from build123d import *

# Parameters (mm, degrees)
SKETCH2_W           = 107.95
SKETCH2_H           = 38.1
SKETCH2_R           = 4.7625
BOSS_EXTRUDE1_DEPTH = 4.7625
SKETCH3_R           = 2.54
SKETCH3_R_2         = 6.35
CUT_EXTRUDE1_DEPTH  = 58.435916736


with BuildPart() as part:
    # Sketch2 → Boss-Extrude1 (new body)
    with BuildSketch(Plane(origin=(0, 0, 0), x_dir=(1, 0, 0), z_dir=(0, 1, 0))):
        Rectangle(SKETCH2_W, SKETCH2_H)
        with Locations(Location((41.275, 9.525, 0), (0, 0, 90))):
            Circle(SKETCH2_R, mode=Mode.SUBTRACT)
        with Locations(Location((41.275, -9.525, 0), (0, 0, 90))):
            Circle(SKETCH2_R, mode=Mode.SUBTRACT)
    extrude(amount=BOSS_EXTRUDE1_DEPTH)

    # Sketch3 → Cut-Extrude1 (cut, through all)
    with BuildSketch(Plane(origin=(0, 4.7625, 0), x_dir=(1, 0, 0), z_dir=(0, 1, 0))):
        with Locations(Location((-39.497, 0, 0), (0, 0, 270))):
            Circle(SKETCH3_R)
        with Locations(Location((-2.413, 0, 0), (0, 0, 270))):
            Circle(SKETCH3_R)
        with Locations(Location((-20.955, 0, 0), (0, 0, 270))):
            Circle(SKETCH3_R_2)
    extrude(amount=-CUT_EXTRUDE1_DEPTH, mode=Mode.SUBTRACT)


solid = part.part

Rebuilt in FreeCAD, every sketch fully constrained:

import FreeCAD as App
import Part
import Sketcher
Q = App.Units.Quantity

doc = App.newDocument("Part")
params = doc.addObject("Spreadsheet::Sheet", "Params")
for row, (alias, value) in enumerate([
    ("sketch1_diameter", "0.375 in"),
    ("sketch1_height", "1.5 in"),
    ("sketch1_width", "4.25 in"),
    ("pad1_length", "0.1875 in"),
    ("sketch2_diameter", "0.2 in"),
    ("sketch2_diameter2", "0.5 in"),
], start=1):
    params.set(f"A{row}", alias)
    params.set(f"B{row}", "=" + value)
    params.setAlias(f"B{row}", alias)

body = doc.addObject("PartDesign::Body", "Body")

# Sketch on XZ plane
sketch1 = doc.addObject("Sketcher::SketchObject", "Sketch")
body.addObject(sketch1)
sketch1.AttachmentSupport = (doc.XZ_Plane, [""])
sketch1.MapMode = "FlatFace"
sketch1.addGeometry([
    Part.LineSegment(App.Vector(-53.975, -19.05, 0), App.Vector(-53.975, 19.05, 0)),  # 0
    Part.LineSegment(App.Vector(-53.975, 19.05, 0), App.Vector(53.975, 19.05, 0)),  # 1
    Part.LineSegment(App.Vector(53.975, 19.05, 0), App.Vector(53.975, -19.05, 0)),  # 2
    Part.LineSegment(App.Vector(53.975, -19.05, 0), App.Vector(-53.975, -19.05, 0)),  # 3
    Part.Circle(App.Vector(41.275, 9.525, 0), App.Vector(0, 0, 1), 4.7625),  # 4
    Part.Circle(App.Vector(41.275, -9.525, 0), App.Vector(0, 0, 1), 4.7625),  # 5
], False)
sketch1.addConstraint([
    Sketcher.Constraint("Coincident", 0, 2, 1, 1),
    Sketcher.Constraint("Coincident", 1, 2, 2, 1),
    Sketcher.Constraint("Coincident", 2, 2, 3, 1),
    Sketcher.Constraint("Coincident", 3, 2, 0, 1),
    Sketcher.Constraint("Vertical", 0),
    Sketcher.Constraint("Horizontal", 1),
    Sketcher.Constraint("Vertical", 2),
    Sketcher.Constraint("Horizontal", 3),
    Sketcher.Constraint("Equal", 4, 5),
    Sketcher.Constraint("Symmetric", 0, 2, 2, 2, -1, 1),
    Sketcher.Constraint("Symmetric", 4, 3, 5, 3, -1),
    Sketcher.Constraint("Diameter", 4, Q("0.375 in")),
    Sketcher.Constraint("DistanceY", 0, 1, 0, 2, Q("1.5 in")),
    Sketcher.Constraint("DistanceX", 1, 1, 1, 2, Q("4.25 in")),
    Sketcher.Constraint("DistanceX", 4, 3, 1, 2, Q("0.5 in")),
    Sketcher.Constraint("DistanceY", 5, 3, 4, 3, Q("0.75 in")),
])
sketch1.setExpression("Constraints[11]", "Params.sketch1_diameter")
sketch1.setExpression("Constraints[12]", "Params.sketch1_height")
sketch1.setExpression("Constraints[13]", "Params.sketch1_width")
pad1 = doc.addObject("PartDesign::Pad", "Pad")
body.addObject(pad1)
pad1.Profile = sketch1
pad1.setExpression("Length", "Params.pad1_length")
pad1.Reversed = True

# Sketch on XZ plane
sketch2 = doc.addObject("Sketcher::SketchObject", "Sketch001")
body.addObject(sketch2)
sketch2.AttachmentSupport = (doc.XZ_Plane, [""])
sketch2.MapMode = "FlatFace"
sketch2.AttachmentOffset = App.Placement(App.Vector(0, 0, -0.1875 * 25.4), App.Rotation())
sketch2.addGeometry([
    Part.Circle(App.Vector(-39.497, 0, 0), App.Vector(0, 0, 1), 2.54),
    Part.Circle(App.Vector(-2.413, 0, 0), App.Vector(0, 0, 1), 2.54),
    Part.Circle(App.Vector(-20.955, 0, 0), App.Vector(0, 0, 1), 6.35),
], False)
sketch2.addConstraint([
    Sketcher.Constraint("Equal", 0, 1),
    Sketcher.Constraint("PointOnObject", 0, 3, -1),
    Sketcher.Constraint("PointOnObject", 1, 3, -1),
    Sketcher.Constraint("PointOnObject", 2, 3, -1),
    Sketcher.Constraint("Diameter", 0, Q("0.2 in")),
    Sketcher.Constraint("Diameter", 2, Q("0.5 in")),
    Sketcher.Constraint("DistanceX", 0, 3, 1, 3, Q("1.46 in")),
    Sketcher.Constraint("DistanceX", 2, 3, 1, 3, Q("0.73 in")),
    Sketcher.Constraint("DistanceX", 0, 3, -1, 1, Q("1.555 in")),
])
sketch2.setExpression("Constraints[4]", "Params.sketch2_diameter")
sketch2.setExpression("Constraints[5]", "Params.sketch2_diameter2")
pocket1 = doc.addObject("PartDesign::Pocket", "Pocket")
body.addObject(pocket1)
pocket1.Profile = sketch2
pocket1.Type = "ThroughAll"
pocket1.Reversed = True

doc.recompute()
